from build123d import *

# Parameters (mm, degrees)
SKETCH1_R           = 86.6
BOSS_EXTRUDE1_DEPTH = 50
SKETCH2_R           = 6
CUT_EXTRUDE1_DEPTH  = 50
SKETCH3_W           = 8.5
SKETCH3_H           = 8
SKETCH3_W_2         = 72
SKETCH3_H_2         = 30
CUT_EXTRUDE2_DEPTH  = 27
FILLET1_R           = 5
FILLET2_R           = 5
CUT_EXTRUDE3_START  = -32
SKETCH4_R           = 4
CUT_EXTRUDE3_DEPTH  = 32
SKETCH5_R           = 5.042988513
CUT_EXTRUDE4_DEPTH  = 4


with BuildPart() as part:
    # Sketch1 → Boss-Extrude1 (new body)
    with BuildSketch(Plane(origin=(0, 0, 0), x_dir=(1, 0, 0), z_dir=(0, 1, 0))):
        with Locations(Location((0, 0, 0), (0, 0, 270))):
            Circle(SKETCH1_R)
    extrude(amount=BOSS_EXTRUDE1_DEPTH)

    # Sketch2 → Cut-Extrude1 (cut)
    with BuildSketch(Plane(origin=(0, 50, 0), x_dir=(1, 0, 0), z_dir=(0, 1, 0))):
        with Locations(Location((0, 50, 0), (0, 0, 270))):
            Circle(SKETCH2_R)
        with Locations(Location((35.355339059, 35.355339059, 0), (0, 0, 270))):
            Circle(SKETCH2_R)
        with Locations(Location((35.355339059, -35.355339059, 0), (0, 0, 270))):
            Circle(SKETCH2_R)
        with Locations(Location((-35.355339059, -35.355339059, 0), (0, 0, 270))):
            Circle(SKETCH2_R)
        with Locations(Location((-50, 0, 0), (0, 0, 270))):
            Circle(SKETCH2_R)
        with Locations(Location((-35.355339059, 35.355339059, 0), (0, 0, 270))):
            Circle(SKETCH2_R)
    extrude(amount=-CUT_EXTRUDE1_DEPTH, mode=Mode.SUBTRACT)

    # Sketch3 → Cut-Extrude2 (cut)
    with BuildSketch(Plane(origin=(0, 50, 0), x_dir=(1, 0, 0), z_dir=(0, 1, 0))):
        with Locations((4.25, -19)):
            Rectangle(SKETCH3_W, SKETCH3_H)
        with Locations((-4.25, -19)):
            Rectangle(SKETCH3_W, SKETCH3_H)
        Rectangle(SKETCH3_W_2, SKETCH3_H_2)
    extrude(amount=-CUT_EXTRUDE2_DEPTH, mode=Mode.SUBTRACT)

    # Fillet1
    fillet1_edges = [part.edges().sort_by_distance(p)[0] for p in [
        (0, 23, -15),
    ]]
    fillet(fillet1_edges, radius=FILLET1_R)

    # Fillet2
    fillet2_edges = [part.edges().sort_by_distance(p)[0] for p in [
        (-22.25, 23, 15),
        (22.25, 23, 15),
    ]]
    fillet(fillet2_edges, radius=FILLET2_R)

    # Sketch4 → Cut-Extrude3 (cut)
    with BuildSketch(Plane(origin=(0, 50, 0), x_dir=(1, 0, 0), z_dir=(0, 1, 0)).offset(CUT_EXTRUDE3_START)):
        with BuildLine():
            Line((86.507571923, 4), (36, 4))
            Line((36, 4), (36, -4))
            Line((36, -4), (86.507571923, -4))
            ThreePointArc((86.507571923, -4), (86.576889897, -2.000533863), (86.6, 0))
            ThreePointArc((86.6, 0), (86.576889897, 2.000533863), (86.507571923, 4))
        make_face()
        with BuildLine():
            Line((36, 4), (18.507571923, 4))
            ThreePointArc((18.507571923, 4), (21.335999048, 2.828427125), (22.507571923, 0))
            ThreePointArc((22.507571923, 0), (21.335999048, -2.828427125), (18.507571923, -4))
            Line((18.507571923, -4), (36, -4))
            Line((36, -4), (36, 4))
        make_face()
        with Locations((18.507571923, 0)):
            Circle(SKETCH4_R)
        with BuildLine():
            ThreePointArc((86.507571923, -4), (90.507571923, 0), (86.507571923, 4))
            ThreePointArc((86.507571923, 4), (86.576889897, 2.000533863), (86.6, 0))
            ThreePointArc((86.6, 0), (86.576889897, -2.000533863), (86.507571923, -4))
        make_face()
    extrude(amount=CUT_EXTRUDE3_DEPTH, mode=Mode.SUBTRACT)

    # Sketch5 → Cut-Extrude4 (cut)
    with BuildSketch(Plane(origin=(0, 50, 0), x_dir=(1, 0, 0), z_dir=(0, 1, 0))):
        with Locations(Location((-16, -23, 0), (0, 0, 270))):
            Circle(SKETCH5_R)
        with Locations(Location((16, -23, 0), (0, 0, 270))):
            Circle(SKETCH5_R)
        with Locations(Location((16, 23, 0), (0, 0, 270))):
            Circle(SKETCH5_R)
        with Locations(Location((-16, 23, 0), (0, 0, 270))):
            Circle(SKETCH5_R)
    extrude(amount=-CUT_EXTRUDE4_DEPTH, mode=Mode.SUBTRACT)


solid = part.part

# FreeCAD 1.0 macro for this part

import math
import FreeCAD as App
import Part
import Sketcher
from FreeCAD import Vector


def edges_at(feature, points):
    """Names of the edges that pass closest to the given points."""
    edges = feature.Shape.Edges
    near = lambda p: min(range(len(edges)), key=lambda i: edges[i].distToShape(Part.Vertex(*p))[0])
    return sorted({f"Edge{near(p) + 1}" for p in points})

doc = App.newDocument("Part")
body = doc.addObject("PartDesign::Body", "Body")

# Sketch on XZ plane
sketch1 = doc.addObject("Sketcher::SketchObject", "Sketch")
body.addObject(sketch1)
sketch1.AttachmentSupport = (doc.XZ_Plane, [""])
sketch1.MapMode = "FlatFace"
sketch1.addGeometry(Part.Circle(Vector(0, 0, 0), Vector(0, 0, 1), 87), False)
sketch1.addConstraint([
    Sketcher.Constraint("Coincident", 0, 3, -1, 1),
    Sketcher.Constraint("Diameter", 0, 173.2),
])
pad1 = doc.addObject("PartDesign::Pad", "Pad")
body.addObject(pad1)
pad1.Profile = sketch1
pad1.Length = 50
pad1.Reversed = True

# Sketch on XZ plane
sketch2 = doc.addObject("Sketcher::SketchObject", "Sketch001")
body.addObject(sketch2)
sketch2.AttachmentSupport = (doc.XZ_Plane, [""])
sketch2.MapMode = "FlatFace"
sketch2.AttachmentOffset = App.Placement(Vector(0, 0, -50), App.Rotation())
sketch2.addGeometry([
    Part.Circle(Vector(0, -50, 0), Vector(0, 0, 1), 6),  # 0
    Part.Circle(Vector(35, -35, 0), Vector(0, 0, 1), 6),  # 1
    Part.Circle(Vector(35, 35, 0), Vector(0, 0, 1), 6),  # 2
    Part.Circle(Vector(-35, 35, 0), Vector(0, 0, 1), 6),  # 3
    Part.Circle(Vector(-50, 0, 0), Vector(0, 0, 1), 6),  # 4
    Part.Circle(Vector(-35, -35, 0), Vector(0, 0, 1), 6),  # 5
], False)
sketch2.addConstraint([
    Sketcher.Constraint("Equal", 0, 1),
    Sketcher.Constraint("Equal", 1, 2),
    Sketcher.Constraint("Equal", 2, 3),
    Sketcher.Constraint("Equal", 3, 4),
    Sketcher.Constraint("Equal", 4, 5),
    Sketcher.Constraint("Symmetric", 1, 3, 3, 3, -1, 1),
    Sketcher.Constraint("Symmetric", 2, 3, 5, 3, -1, 1),
    Sketcher.Constraint("Symmetric", 2, 3, 3, 3, -2),
    Sketcher.Constraint("PointOnObject", 0, 3, -2),
    Sketcher.Constraint("PointOnObject", 4, 3, -1),
    Sketcher.Constraint("Diameter", 0, 12.0),
    Sketcher.Constraint("DistanceY", 0, 3, -1, 1, 50.0),
    Sketcher.Constraint("DistanceX", 4, 3, -1, 1, 50.0),
    Sketcher.Constraint("DistanceX", -1, 1, 1, 3, 35.355339),
    Sketcher.Constraint("DistanceY", 1, 3, -1, 1, 35.355339),
])
pocket1 = doc.addObject("PartDesign::Pocket", "Pocket")
body.addObject(pocket1)
pocket1.Profile = sketch2
pocket1.Length = 50
pocket1.Reversed = True

# Sketch on XZ plane
sketch3 = doc.addObject("Sketcher::SketchObject", "Sketch002")
body.addObject(sketch3)
sketch3.AttachmentSupport = (doc.XZ_Plane, [""])
sketch3.MapMode = "FlatFace"
sketch3.AttachmentOffset = App.Placement(Vector(0, 0, -50), App.Rotation())
sketch3.addGeometry([
    Part.LineSegment(Vector(8, 23, 0), Vector(8, 15, 0)),  # 0
    Part.LineSegment(Vector(8, 15, 0), Vector(36, 15, 0)),  # 1
    Part.LineSegment(Vector(36, 15, 0), Vector(36, -15, 0)),  # 2
    Part.LineSegment(Vector(36, -15, 0), Vector(-36, -15, 0)),  # 3
    Part.LineSegment(Vector(-36, -15, 0), Vector(-36, 15, 0)),  # 4
    Part.LineSegment(Vector(-36, 15, 0), Vector(-8, 15, 0)),  # 5
    Part.LineSegment(Vector(-8, 15, 0), Vector(-8, 23, 0)),  # 6
    Part.LineSegment(Vector(-8, 23, 0), Vector(8, 23, 0)),  # 7
], False)
sketch3.addConstraint([
    Sketcher.Constraint("Coincident", 0, 2, 1, 1),
    Sketcher.Constraint("Coincident", 1, 2, 2, 1),
    Sketcher.Constraint("Coincident", 2, 2, 3, 1),
    Sketcher.Constraint("Coincident", 3, 2, 4, 1),
    Sketcher.Constraint("Coincident", 4, 2, 5, 1),
    Sketcher.Constraint("Coincident", 5, 2, 6, 1),
    Sketcher.Constraint("Coincident", 6, 2, 7, 1),
    Sketcher.Constraint("Coincident", 7, 2, 0, 1),
    Sketcher.Constraint("Vertical", 0),
    Sketcher.Constraint("Horizontal", 1),
    Sketcher.Constraint("Vertical", 2),
    Sketcher.Constraint("Horizontal", 3),
    Sketcher.Constraint("Vertical", 4),
    Sketcher.Constraint("Horizontal", 5),
    Sketcher.Constraint("Vertical", 6),
    Sketcher.Constraint("Horizontal", 7),
    Sketcher.Constraint("Symmetric", 1, 2, 3, 2, -1, 1),
    Sketcher.Constraint("Symmetric", 0, 2, 5, 2, -2),
    Sketcher.Constraint("DistanceX", 3, 2, 3, 1, 72.0),
    Sketcher.Constraint("DistanceX", 7, 1, 7, 2, 17.0),
    Sketcher.Constraint("DistanceY", 0, 2, 0, 1, 8.0),
    Sketcher.Constraint("DistanceY", 2, 2, 2, 1, 30.0),
])
pocket2 = doc.addObject("PartDesign::Pocket", "Pocket001")
body.addObject(pocket2)
pocket2.Profile = sketch3
pocket2.Length = 27
pocket2.Reversed = True
doc.recompute()

fillet = doc.addObject("PartDesign::Fillet", "Fillet")
body.addObject(fillet)
fillet.Base = (pocket2, edges_at(pocket2, [(0, 23, -15)]))
fillet.Radius = 5
doc.recompute()

fillet2 = doc.addObject("PartDesign::Fillet", "Fillet001")
body.addObject(fillet2)
fillet2.Base = (fillet, edges_at(fillet, [(-22.25, 23, 15), (22.25, 23, 15)]))
fillet2.Radius = 5

# Sketch on XZ plane
sketch4 = doc.addObject("Sketcher::SketchObject", "Sketch003")
body.addObject(sketch4)
sketch4.AttachmentSupport = (doc.XZ_Plane, [""])
sketch4.MapMode = "FlatFace"
sketch4.AttachmentOffset = App.Placement(Vector(0, 0, -18), App.Rotation())
sketch4.addGeometry([
    Part.LineSegment(Vector(86.5, -4, 0), Vector(18.5, -4, 0)),
    Part.ArcOfCircle(Part.Circle(Vector(18.5, 0, 0), Vector(0, 0, 1), 4), math.radians(90), math.radians(270)),
    Part.LineSegment(Vector(18.5, 4, 0), Vector(86.5, 4, 0)),
    Part.ArcOfCircle(Part.Circle(Vector(86.5, 0, 0), Vector(0, 0, 1), 4), math.radians(-90), math.radians(90)),
], False)
sketch4.addConstraint([
    Sketcher.Constraint("Tangent", 0, 2, 1, 2),
    Sketcher.Constraint("Tangent", 1, 1, 2, 1),
    Sketcher.Constraint("Tangent", 2, 2, 3, 2),
    Sketcher.Constraint("Tangent", 3, 1, 0, 1),
    Sketcher.Constraint("Horizontal", 0),
    Sketcher.Constraint("Horizontal", 2),
    Sketcher.Constraint("PointOnObject", 1, 3, -1),
    Sketcher.Constraint("Radius", 1, 4.0),
    Sketcher.Constraint("DistanceX", 0, 2, 0, 1, 68.0),
    Sketcher.Constraint("DistanceX", -1, 1, 1, 3, 18.507572),
])
pocket3 = doc.addObject("PartDesign::Pocket", "Pocket002")
body.addObject(pocket3)
pocket3.Profile = sketch4
pocket3.Length = 32

# Sketch on XZ plane
sketch5 = doc.addObject("Sketcher::SketchObject", "Sketch004")
body.addObject(sketch5)
sketch5.AttachmentSupport = (doc.XZ_Plane, [""])
sketch5.MapMode = "FlatFace"
sketch5.AttachmentOffset = App.Placement(Vector(0, 0, -50), App.Rotation())
sketch5.addGeometry([
    Part.Circle(Vector(-16, 23, 0), Vector(0, 0, 1), 5),
    Part.Circle(Vector(16, 23, 0), Vector(0, 0, 1), 5),
    Part.Circle(Vector(16, -23, 0), Vector(0, 0, 1), 5),
    Part.Circle(Vector(-16, -23, 0), Vector(0, 0, 1), 5),
], False)
sketch5.addConstraint([
    Sketcher.Constraint("Equal", 0, 1),
    Sketcher.Constraint("Equal", 1, 2),
    Sketcher.Constraint("Equal", 2, 3),
    Sketcher.Constraint("Symmetric", 0, 3, 2, 3, -1, 1),
    Sketcher.Constraint("Symmetric", 1, 3, 3, 3, -1, 1),
    Sketcher.Constraint("Symmetric", 0, 3, 1, 3, -2),
    Sketcher.Constraint("DistanceX", 0, 3, -1, 1, 16.0),
    Sketcher.Constraint("DistanceY", -1, 1, 0, 3, 23.0),
    Sketcher.Constraint("Diameter", 0, 10.085977),
])
pocket4 = doc.addObject("PartDesign::Pocket", "Pocket003")
body.addObject(pocket4)
pocket4.Profile = sketch5
pocket4.Length = 4
pocket4.Reversed = True

doc.recompute()
